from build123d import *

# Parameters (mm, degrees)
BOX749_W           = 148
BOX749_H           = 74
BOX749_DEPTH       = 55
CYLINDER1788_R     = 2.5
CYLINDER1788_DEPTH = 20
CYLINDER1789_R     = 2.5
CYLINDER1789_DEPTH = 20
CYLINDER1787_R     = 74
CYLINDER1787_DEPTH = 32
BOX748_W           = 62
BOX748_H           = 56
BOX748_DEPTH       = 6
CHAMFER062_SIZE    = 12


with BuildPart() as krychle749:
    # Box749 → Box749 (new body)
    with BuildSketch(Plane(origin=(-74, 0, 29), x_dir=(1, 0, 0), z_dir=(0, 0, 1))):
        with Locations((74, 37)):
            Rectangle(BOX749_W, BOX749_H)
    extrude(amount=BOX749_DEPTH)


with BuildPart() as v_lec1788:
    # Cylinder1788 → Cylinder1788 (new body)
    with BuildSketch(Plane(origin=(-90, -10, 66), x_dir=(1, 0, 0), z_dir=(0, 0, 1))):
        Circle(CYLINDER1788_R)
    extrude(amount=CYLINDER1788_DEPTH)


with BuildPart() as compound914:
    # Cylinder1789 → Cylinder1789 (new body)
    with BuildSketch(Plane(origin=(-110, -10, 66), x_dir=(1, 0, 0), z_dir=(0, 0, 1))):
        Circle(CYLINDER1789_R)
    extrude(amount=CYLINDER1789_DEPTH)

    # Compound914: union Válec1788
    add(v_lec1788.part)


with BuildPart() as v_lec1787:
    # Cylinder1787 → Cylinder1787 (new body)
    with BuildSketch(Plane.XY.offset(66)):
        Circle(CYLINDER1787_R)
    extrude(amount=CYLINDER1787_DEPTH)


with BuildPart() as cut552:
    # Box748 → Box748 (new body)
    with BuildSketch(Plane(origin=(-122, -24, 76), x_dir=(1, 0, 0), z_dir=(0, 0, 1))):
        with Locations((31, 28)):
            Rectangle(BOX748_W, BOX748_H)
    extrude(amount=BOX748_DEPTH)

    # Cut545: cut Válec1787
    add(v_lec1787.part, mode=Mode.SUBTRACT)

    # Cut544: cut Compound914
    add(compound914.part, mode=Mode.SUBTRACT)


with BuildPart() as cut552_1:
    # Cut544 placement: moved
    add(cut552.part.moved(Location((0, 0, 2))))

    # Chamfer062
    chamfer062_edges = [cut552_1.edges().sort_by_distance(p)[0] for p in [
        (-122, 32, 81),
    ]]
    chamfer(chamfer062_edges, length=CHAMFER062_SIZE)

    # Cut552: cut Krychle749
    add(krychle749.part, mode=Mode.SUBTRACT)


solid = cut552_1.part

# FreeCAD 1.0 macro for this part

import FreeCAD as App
import Part
import Sketcher
Q = App.Units.Quantity


def edges_at(feature, points):
    """Names of the edges that pass closest to the given points."""
    edges = feature.Shape.Edges
    near = lambda p: min(range(len(edges)), key=lambda i: edges[i].distToShape(Part.Vertex(*p))[0])
    return sorted({f"Edge{near(p) + 1}" for p in points})

doc = App.newDocument("Part")
params = doc.addObject("Spreadsheet::Sheet", "Params")
for row, (alias, value) in enumerate([
    ("sketch1_width", "148 mm"),
    ("sketch1_height", "74 mm"),
    ("pad1_length", "55 mm"),
    ("sketch2_diameter", "5 mm"),
    ("pad2_length", "20 mm"),
    ("sketch3_diameter", "5 mm"),
    ("pad3_length", "20 mm"),
    ("sketch4_diameter", "148 mm"),
    ("pad4_length", "32 mm"),
    ("sketch5_width", "62 mm"),
    ("sketch5_height", "56 mm"),
    ("pad5_length", "6 mm"),
    ("chamfer_size", "12 mm"),
], start=1):
    params.set(f"A{row}", alias)
    params.set(f"B{row}", "=" + value)
    params.setAlias(f"B{row}", alias)

body = doc.addObject("PartDesign::Body", "Body")

# Sketch on XY plane
sketch1 = doc.addObject("Sketcher::SketchObject", "Sketch")
body.addObject(sketch1)
sketch1.AttachmentSupport = (doc.XY_Plane, [""])
sketch1.MapMode = "FlatFace"
sketch1.AttachmentOffset = App.Placement(App.Vector(0, 0, 29), App.Rotation())
sketch1.addGeometry(Part.LineSegment(App.Vector(-74, 74, 0), App.Vector(-74, 0, 0)), False)
sketch1.addGeometry(Part.LineSegment(App.Vector(-74, 0, 0), App.Vector(74, 0, 0)), False)
sketch1.addGeometry(Part.LineSegment(App.Vector(74, 0, 0), App.Vector(74, 74, 0)), False)
sketch1.addGeometry(Part.LineSegment(App.Vector(74, 74, 0), App.Vector(-74, 74, 0)), False)
sketch1.addConstraint(Sketcher.Constraint("Coincident", 0, 2, 1, 1))
sketch1.addConstraint(Sketcher.Constraint("Coincident", 1, 2, 2, 1))
sketch1.addConstraint(Sketcher.Constraint("Coincident", 2, 2, 3, 1))
sketch1.addConstraint(Sketcher.Constraint("Coincident", 3, 2, 0, 1))
sketch1.addConstraint(Sketcher.Constraint("Vertical", 0))
sketch1.addConstraint(Sketcher.Constraint("Horizontal", 1))
sketch1.addConstraint(Sketcher.Constraint("Vertical", 2))
sketch1.addConstraint(Sketcher.Constraint("Horizontal", 3))
sketch1.addConstraint(Sketcher.Constraint("Symmetric", 0, 2, 1, 2, -1, 1))
sketch1.addConstraint(Sketcher.Constraint("DistanceX", 1, 1, 1, 2, Q("148 mm")))
sketch1.addConstraint(Sketcher.Constraint("DistanceY", 0, 2, 0, 1, Q("74 mm")))
sketch1.setExpression("Constraints[9]", "Params.sketch1_width")
sketch1.setExpression("Constraints[10]", "Params.sketch1_height")
pad1 = doc.addObject("PartDesign::Pad", "Pad")
body.addObject(pad1)
pad1.Profile = sketch1
pad1.setExpression("Length", "Params.pad1_length")
body2 = doc.addObject("PartDesign::Body", "Body001")

# Sketch on XY plane
sketch2 = doc.addObject("Sketcher::SketchObject", "Sketch001")
body2.addObject(sketch2)
sketch2.AttachmentSupport = (doc.getObject("XY_Plane001"), [""])
sketch2.MapMode = "FlatFace"
sketch2.AttachmentOffset = App.Placement(App.Vector(0, 0, 66), App.Rotation())
sketch2.addGeometry(Part.Circle(App.Vector(-90, -10, 0), App.Vector(0, 0, 1), 2.5), False)
sketch2.addConstraint(Sketcher.Constraint("Diameter", 0, Q("5 mm")))
sketch2.addConstraint(Sketcher.Constraint("DistanceX", 0, 3, -1, 1, Q("90 mm")))
sketch2.addConstraint(Sketcher.Constraint("DistanceY", 0, 3, -1, 1, Q("10 mm")))
sketch2.setExpression("Constraints[0]", "Params.sketch2_diameter")
pad2 = doc.addObject("PartDesign::Pad", "Pad001")
body2.addObject(pad2)
pad2.Profile = sketch2
pad2.setExpression("Length", "Params.pad2_length")
body3 = doc.addObject("PartDesign::Body", "Body002")
body3.AllowCompound = True

# Sketch on XY plane
sketch3 = doc.addObject("Sketcher::SketchObject", "Sketch002")
body3.addObject(sketch3)
sketch3.AttachmentSupport = (doc.getObject("XY_Plane002"), [""])
sketch3.MapMode = "FlatFace"
sketch3.AttachmentOffset = App.Placement(App.Vector(0, 0, 66), App.Rotation())
sketch3.addGeometry(Part.Circle(App.Vector(-110, -10, 0), App.Vector(0, 0, 1), 2.5), False)
sketch3.addConstraint(Sketcher.Constraint("Diameter", 0, Q("5 mm")))
sketch3.addConstraint(Sketcher.Constraint("DistanceX", 0, 3, -1, 1, Q("110 mm")))
sketch3.addConstraint(Sketcher.Constraint("DistanceY", 0, 3, -1, 1, Q("10 mm")))
sketch3.setExpression("Constraints[0]", "Params.sketch3_diameter")
pad3 = doc.addObject("PartDesign::Pad", "Pad002")
body3.addObject(pad3)
pad3.Profile = sketch3
pad3.setExpression("Length", "Params.pad3_length")
doc.recompute()

boolean = doc.addObject("PartDesign::Boolean", "Boolean")
body3.addObject(boolean)
boolean.Type = "Fuse"
boolean.addObjects([body2])
body4 = doc.addObject("PartDesign::Body", "Body003")

# Sketch on XY plane
sketch4 = doc.addObject("Sketcher::SketchObject", "Sketch003")
body4.addObject(sketch4)
sketch4.AttachmentSupport = (doc.getObject("XY_Plane003"), [""])
sketch4.MapMode = "FlatFace"
sketch4.AttachmentOffset = App.Placement(App.Vector(0, 0, 66), App.Rotation())
sketch4.addGeometry(Part.Circle(App.Vector(0, 0, 0), App.Vector(0, 0, 1), 74), False)
sketch4.addConstraint(Sketcher.Constraint("Coincident", 0, 3, -1, 1))
sketch4.addConstraint(Sketcher.Constraint("Diameter", 0, Q("148 mm")))
sketch4.setExpression("Constraints[1]", "Params.sketch4_diameter")
pad4 = doc.addObject("PartDesign::Pad", "Pad003")
body4.addObject(pad4)
pad4.Profile = sketch4
pad4.setExpression("Length", "Params.pad4_length")
body5 = doc.addObject("PartDesign::Body", "Body004")

# Sketch on XY plane
sketch5 = doc.addObject("Sketcher::SketchObject", "Sketch004")
body5.addObject(sketch5)
sketch5.AttachmentSupport = (doc.getObject("XY_Plane004"), [""])
sketch5.MapMode = "FlatFace"
sketch5.AttachmentOffset = App.Placement(App.Vector(0, 0, 76), App.Rotation())
sketch5.addGeometry(Part.LineSegment(App.Vector(-122, 32, 0), App.Vector(-122, -24, 0)), False)
sketch5.addGeometry(Part.LineSegment(App.Vector(-122, -24, 0), App.Vector(-60, -24, 0)), False)
sketch5.addGeometry(Part.LineSegment(App.Vector(-60, -24, 0), App.Vector(-60, 32, 0)), False)
sketch5.addGeometry(Part.LineSegment(App.Vector(-60, 32, 0), App.Vector(-122, 32, 0)), False)
sketch5.addConstraint(Sketcher.Constraint("Coincident", 0, 2, 1, 1))
sketch5.addConstraint(Sketcher.Constraint("Coincident", 1, 2, 2, 1))
sketch5.addConstraint(Sketcher.Constraint("Coincident", 2, 2, 3, 1))
sketch5.addConstraint(Sketcher.Constraint("Coincident", 3, 2, 0, 1))
sketch5.addConstraint(Sketcher.Constraint("Vertical", 0))
sketch5.addConstraint(Sketcher.Constraint("Horizontal", 1))
sketch5.addConstraint(Sketcher.Constraint("Vertical", 2))
sketch5.addConstraint(Sketcher.Constraint("Horizontal", 3))
sketch5.addConstraint(Sketcher.Constraint("DistanceX", 1, 1, 1, 2, Q("62 mm")))
sketch5.addConstraint(Sketcher.Constraint("DistanceY", 0, 2, 0, 1, Q("56 mm")))
sketch5.addConstraint(Sketcher.Constraint("DistanceX", 0, 2, -1, 1, Q("122 mm")))
sketch5.addConstraint(Sketcher.Constraint("DistanceY", 0, 2, -1, 1, Q("24 mm")))
sketch5.setExpression("Constraints[8]", "Params.sketch5_width")
sketch5.setExpression("Constraints[9]", "Params.sketch5_height")
pad5 = doc.addObject("PartDesign::Pad", "Pad004")
body5.addObject(pad5)
pad5.Profile = sketch5
pad5.setExpression("Length", "Params.pad5_length")
doc.recompute()

boolean2 = doc.addObject("PartDesign::Boolean", "Boolean001")
body5.addObject(boolean2)
boolean2.Type = "Cut"
boolean2.addObjects([body4])
doc.recompute()

boolean3 = doc.addObject("PartDesign::Boolean", "Boolean002")
body5.addObject(boolean3)
boolean3.Type = "Cut"
boolean3.addObjects([body3])
body6 = doc.addObject("PartDesign::Body", "Body005")
doc.recompute()

body5.Placement = App.Placement(App.Vector(0, 0, 2), App.Rotation(App.Vector(0, 0, 1), 0))
boolean4 = doc.addObject("PartDesign::Boolean", "Boolean003")
body6.addObject(boolean4)
boolean4.Type = "Fuse"
boolean4.addObjects([body5])
doc.recompute()

chamfer = doc.addObject("PartDesign::Chamfer", "Chamfer")
body6.addObject(chamfer)
chamfer.Base = (boolean4, edges_at(boolean4, [(-122, 32, 81)]))
chamfer.setExpression("Size", "Params.chamfer_size")
doc.recompute()

boolean5 = doc.addObject("PartDesign::Boolean", "Boolean004")
body6.addObject(boolean5)
boolean5.Type = "Cut"
boolean5.addObjects([body])

doc.recompute()
